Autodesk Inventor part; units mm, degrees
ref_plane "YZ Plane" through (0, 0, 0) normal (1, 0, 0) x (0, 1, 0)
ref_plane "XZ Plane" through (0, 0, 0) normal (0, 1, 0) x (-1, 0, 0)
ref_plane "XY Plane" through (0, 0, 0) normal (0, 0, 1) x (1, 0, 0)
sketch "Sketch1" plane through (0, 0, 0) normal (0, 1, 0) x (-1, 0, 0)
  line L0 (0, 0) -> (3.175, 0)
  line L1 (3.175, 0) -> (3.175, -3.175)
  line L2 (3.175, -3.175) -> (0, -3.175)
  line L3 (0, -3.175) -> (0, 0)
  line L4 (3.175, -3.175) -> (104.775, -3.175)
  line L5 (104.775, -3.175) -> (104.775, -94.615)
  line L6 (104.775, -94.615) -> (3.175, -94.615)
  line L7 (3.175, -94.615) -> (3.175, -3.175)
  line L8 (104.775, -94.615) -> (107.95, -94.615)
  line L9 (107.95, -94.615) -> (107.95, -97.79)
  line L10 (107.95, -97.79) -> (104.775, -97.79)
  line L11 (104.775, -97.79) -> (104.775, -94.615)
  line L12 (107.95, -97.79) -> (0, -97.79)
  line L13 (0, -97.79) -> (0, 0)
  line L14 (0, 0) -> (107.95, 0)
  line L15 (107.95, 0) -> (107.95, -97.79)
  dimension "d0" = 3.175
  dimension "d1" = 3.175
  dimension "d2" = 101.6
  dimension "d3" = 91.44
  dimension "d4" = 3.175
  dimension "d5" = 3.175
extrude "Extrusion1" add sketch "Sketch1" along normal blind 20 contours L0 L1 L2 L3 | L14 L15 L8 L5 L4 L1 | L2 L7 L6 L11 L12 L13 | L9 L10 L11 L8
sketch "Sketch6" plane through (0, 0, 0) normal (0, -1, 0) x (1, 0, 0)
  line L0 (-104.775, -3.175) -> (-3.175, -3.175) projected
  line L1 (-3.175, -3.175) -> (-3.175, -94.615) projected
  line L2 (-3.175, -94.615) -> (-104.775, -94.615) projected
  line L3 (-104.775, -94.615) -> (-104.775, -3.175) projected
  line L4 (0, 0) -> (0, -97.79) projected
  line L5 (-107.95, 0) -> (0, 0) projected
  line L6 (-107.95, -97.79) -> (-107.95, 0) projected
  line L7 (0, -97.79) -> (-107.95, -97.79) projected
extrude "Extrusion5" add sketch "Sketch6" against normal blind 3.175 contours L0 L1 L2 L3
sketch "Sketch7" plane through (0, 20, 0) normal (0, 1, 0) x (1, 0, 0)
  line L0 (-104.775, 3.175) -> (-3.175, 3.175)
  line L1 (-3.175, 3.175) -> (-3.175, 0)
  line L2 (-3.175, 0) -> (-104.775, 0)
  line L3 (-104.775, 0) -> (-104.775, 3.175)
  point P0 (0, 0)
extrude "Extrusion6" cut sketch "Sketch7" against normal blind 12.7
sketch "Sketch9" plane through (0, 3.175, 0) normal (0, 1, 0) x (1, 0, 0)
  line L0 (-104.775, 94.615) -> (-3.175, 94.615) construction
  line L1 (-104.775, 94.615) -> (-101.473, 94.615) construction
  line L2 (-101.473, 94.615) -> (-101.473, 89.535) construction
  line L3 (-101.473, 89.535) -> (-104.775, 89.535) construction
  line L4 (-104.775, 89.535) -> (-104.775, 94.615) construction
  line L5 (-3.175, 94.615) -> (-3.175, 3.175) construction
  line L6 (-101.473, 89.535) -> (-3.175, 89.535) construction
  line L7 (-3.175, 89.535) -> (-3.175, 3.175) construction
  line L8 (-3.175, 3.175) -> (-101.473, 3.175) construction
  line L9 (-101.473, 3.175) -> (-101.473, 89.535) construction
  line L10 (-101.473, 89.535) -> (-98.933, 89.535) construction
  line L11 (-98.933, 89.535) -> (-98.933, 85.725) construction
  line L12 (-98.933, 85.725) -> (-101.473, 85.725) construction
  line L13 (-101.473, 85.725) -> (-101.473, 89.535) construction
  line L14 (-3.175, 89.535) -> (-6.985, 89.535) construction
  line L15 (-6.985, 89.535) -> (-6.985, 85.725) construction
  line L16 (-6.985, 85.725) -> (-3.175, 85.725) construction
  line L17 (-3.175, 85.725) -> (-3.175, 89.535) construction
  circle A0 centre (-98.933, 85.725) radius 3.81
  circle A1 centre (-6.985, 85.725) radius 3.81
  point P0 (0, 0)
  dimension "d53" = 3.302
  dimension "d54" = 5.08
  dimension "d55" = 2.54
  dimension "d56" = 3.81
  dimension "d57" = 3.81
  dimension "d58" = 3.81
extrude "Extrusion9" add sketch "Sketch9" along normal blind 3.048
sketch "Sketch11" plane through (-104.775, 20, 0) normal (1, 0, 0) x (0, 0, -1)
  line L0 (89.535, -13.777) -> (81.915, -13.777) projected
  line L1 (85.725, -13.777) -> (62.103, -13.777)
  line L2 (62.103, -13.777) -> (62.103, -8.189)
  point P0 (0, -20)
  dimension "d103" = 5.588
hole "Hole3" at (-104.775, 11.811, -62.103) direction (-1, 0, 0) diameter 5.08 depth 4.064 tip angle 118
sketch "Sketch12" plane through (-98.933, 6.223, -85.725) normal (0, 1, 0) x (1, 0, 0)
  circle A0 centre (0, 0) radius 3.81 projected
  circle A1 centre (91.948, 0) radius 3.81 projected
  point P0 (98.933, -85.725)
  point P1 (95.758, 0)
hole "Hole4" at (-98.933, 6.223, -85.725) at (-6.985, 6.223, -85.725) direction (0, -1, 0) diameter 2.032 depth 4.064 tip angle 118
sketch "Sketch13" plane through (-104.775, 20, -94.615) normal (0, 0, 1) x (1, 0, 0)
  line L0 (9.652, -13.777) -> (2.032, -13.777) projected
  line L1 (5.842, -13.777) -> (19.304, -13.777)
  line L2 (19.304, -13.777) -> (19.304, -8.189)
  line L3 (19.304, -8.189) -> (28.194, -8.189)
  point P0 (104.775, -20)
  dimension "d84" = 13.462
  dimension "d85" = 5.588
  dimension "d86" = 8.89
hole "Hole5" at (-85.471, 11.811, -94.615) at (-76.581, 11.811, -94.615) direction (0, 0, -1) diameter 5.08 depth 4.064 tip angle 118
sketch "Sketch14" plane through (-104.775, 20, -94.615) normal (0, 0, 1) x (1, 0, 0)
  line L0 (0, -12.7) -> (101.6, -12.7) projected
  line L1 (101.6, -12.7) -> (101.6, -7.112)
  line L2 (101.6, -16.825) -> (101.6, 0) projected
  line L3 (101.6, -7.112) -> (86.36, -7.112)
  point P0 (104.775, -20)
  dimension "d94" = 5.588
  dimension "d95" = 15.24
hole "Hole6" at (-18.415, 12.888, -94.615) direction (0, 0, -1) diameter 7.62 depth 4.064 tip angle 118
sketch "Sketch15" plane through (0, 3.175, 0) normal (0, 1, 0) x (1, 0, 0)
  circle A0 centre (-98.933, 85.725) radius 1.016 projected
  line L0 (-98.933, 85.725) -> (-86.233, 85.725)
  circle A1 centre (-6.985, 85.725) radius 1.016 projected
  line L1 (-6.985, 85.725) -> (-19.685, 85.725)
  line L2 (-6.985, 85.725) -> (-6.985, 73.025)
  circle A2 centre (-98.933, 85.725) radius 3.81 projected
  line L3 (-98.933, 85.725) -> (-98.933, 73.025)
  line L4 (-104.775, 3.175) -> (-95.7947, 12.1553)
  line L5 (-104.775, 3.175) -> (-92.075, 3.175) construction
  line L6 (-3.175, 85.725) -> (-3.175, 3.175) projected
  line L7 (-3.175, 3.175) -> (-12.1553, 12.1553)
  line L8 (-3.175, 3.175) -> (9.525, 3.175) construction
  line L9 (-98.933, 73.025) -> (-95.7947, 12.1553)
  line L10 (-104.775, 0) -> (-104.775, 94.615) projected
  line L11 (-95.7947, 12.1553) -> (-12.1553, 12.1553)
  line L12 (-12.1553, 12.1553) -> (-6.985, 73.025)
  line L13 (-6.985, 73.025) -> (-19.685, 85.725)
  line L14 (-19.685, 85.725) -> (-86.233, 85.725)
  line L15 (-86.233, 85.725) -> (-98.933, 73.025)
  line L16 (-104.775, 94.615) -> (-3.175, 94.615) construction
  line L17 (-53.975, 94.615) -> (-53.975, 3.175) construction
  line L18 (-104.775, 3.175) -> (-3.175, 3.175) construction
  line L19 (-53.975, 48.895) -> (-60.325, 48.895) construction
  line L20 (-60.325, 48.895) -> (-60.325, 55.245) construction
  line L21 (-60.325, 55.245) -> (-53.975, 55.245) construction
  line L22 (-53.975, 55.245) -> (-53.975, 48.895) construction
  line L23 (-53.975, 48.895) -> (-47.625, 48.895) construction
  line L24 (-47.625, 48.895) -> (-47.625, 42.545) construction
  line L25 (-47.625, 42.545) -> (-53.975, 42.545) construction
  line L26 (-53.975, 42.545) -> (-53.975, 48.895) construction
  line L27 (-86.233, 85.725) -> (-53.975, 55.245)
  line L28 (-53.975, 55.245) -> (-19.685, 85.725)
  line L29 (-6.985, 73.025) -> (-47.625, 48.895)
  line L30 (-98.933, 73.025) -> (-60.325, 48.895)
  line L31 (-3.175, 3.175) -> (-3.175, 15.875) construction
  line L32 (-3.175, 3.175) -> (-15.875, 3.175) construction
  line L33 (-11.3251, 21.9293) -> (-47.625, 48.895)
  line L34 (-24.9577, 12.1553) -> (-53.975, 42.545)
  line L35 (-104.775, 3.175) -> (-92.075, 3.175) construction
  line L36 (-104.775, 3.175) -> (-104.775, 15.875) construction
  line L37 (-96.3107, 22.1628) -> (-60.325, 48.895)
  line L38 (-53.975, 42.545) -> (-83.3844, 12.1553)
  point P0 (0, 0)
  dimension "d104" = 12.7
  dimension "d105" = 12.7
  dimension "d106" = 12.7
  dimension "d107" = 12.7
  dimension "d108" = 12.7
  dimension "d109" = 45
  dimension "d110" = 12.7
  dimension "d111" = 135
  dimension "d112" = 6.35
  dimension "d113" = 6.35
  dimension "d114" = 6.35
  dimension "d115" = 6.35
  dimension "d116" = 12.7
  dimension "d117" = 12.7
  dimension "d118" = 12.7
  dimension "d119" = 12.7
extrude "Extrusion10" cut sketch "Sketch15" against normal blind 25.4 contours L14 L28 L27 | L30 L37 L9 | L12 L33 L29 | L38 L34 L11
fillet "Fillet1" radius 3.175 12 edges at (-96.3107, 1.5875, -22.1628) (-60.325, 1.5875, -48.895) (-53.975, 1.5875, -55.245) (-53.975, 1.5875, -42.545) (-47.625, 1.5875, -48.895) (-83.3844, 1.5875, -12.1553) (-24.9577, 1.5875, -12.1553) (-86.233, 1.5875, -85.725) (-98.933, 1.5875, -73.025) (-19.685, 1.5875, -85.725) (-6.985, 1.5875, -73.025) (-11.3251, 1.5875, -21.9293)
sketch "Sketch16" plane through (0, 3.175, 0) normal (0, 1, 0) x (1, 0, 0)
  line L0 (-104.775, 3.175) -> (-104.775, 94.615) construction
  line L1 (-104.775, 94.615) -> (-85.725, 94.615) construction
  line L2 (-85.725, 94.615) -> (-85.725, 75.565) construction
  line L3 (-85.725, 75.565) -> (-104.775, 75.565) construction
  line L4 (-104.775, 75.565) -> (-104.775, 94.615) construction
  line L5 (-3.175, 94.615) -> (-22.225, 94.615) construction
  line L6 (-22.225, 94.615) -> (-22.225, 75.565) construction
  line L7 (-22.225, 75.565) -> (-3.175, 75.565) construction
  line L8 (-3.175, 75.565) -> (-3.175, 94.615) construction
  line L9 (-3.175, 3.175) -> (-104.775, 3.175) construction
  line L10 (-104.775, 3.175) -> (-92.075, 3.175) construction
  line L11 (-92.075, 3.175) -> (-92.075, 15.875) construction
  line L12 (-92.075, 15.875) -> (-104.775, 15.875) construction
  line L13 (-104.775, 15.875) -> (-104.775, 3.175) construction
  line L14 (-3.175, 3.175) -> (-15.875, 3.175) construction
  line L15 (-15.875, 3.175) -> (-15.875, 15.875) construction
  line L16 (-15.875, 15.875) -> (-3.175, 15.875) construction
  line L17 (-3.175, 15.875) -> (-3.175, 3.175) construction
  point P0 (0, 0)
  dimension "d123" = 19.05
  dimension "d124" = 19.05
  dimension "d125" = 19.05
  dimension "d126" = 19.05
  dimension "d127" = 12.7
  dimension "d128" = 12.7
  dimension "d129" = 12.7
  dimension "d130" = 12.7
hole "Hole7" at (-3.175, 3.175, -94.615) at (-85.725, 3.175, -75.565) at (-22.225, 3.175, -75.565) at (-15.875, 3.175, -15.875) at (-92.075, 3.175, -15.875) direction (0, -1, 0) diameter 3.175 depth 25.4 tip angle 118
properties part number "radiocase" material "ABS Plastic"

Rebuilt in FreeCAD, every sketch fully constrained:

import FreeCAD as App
import Part
import Sketcher
from FreeCAD import Vector
Q = App.Units.Quantity


def edges_at(feature, points):
    """Names of the edges that pass closest to the given points."""
    edges = feature.Shape.Edges
    near = lambda p: min(range(len(edges)), key=lambda i: edges[i].distToShape(Part.Vertex(*p))[0])
    return sorted({f"Edge{near(p) + 1}" for p in points})

doc = App.newDocument("Part")
body = doc.addObject("PartDesign::Body", "Body")

sketch1 = body.newObject("Sketcher::SketchObject", "Sketch")
sketch1.AttachmentSupport = (doc.getObject("XZ_Plane"), [""])
sketch1.MapMode = "FlatFace"
sketch1.addGeometry(Part.LineSegment(Vector(0, 0, 0), Vector(0, -97.79, 0)), False)
sketch1.addGeometry(Part.LineSegment(Vector(0, -97.79, 0), Vector(-107.95, -97.79, 0)), False)
sketch1.addGeometry(Part.LineSegment(Vector(-107.95, -97.79, 0), Vector(-107.95, 0, 0)), False)
sketch1.addGeometry(Part.LineSegment(Vector(-107.95, 0, 0), Vector(0, 0, 0)), False)
sketch1.addGeometry(Part.LineSegment(Vector(-104.775, -3.175, 0), Vector(-104.775, -94.615, 0)), False)
sketch1.addGeometry(Part.LineSegment(Vector(-104.775, -94.615, 0), Vector(-3.175, -94.615, 0)), False)
sketch1.addGeometry(Part.LineSegment(Vector(-3.175, -94.615, 0), Vector(-3.175, -3.175, 0)), False)
sketch1.addGeometry(Part.LineSegment(Vector(-3.175, -3.175, 0), Vector(-104.775, -3.175, 0)), False)
sketch1.addConstraint(Sketcher.Constraint("Coincident", 0, 2, 1, 1))
sketch1.addConstraint(Sketcher.Constraint("Coincident", 1, 2, 2, 1))
sketch1.addConstraint(Sketcher.Constraint("Coincident", 2, 2, 3, 1))
sketch1.addConstraint(Sketcher.Constraint("Coincident", 3, 2, 0, 1))
sketch1.addConstraint(Sketcher.Constraint("Coincident", 4, 2, 5, 1))
sketch1.addConstraint(Sketcher.Constraint("Coincident", 5, 2, 6, 1))
sketch1.addConstraint(Sketcher.Constraint("Coincident", 6, 2, 7, 1))
sketch1.addConstraint(Sketcher.Constraint("Coincident", 7, 2, 4, 1))
sketch1.addConstraint(Sketcher.Constraint("Vertical", 0))
sketch1.addConstraint(Sketcher.Constraint("Horizontal", 1))
sketch1.addConstraint(Sketcher.Constraint("Vertical", 2))
sketch1.addConstraint(Sketcher.Constraint("Horizontal", 3))
sketch1.addConstraint(Sketcher.Constraint("Vertical", 4))
sketch1.addConstraint(Sketcher.Constraint("Horizontal", 5))
sketch1.addConstraint(Sketcher.Constraint("Vertical", 6))
sketch1.addConstraint(Sketcher.Constraint("Horizontal", 7))
sketch1.addConstraint(Sketcher.Constraint("Coincident", 3, 2, -1, 1))
sketch1.addConstraint(Sketcher.Constraint("DistanceX", 5, 1, 5, 2, Q("4 in")))
sketch1.addConstraint(Sketcher.Constraint("DistanceY", 4, 2, 4, 1, Q("3.6 in")))
sketch1.addConstraint(Sketcher.Constraint("DistanceX", 5, 2, -1, 1, Q("0.125 in")))
sketch1.addConstraint(Sketcher.Constraint("DistanceY", 6, 2, -1, 1, Q("0.125 in")))
sketch1.addConstraint(Sketcher.Constraint("DistanceX", 1, 2, 4, 2, Q("0.125 in")))
sketch1.addConstraint(Sketcher.Constraint("DistanceY", 1, 2, 4, 2, Q("0.125 in")))
pad1 = body.newObject("PartDesign::Pad", "Pad")
pad1.Profile = sketch1
pad1.Length = Q("0.7874016 in")
pad1.Reversed = True

sketch2 = body.newObject("Sketcher::SketchObject", "Sketch001")
sketch2.AttachmentSupport = (doc.getObject("XZ_Plane"), [""])
sketch2.MapMode = "FlatFace"
sketch2.addGeometry(Part.LineSegment(Vector(-3.175, -3.175, 0), Vector(-104.775, -3.175, 0)), False)
sketch2.addGeometry(Part.LineSegment(Vector(-104.775, -3.175, 0), Vector(-104.775, -94.615, 0)), False)
sketch2.addGeometry(Part.LineSegment(Vector(-104.775, -94.615, 0), Vector(-3.175, -94.615, 0)), False)
sketch2.addGeometry(Part.LineSegment(Vector(-3.175, -94.615, 0), Vector(-3.175, -3.175, 0)), False)
sketch2.addConstraint(Sketcher.Constraint("Coincident", 0, 2, 1, 1))
sketch2.addConstraint(Sketcher.Constraint("Coincident", 1, 2, 2, 1))
sketch2.addConstraint(Sketcher.Constraint("Coincident", 2, 2, 3, 1))
sketch2.addConstraint(Sketcher.Constraint("Coincident", 3, 2, 0, 1))
sketch2.addConstraint(Sketcher.Constraint("Horizontal", 0))
sketch2.addConstraint(Sketcher.Constraint("Vertical", 1))
sketch2.addConstraint(Sketcher.Constraint("Horizontal", 2))
sketch2.addConstraint(Sketcher.Constraint("Vertical", 3))
sketch2.addConstraint(Sketcher.Constraint("DistanceX", 0, 2, 0, 1, Q("4 in")))
sketch2.addConstraint(Sketcher.Constraint("DistanceY", 1, 2, 1, 1, Q("3.6 in")))
sketch2.addConstraint(Sketcher.Constraint("DistanceX", 0, 2, -1, 1, Q("4.125 in")))
sketch2.addConstraint(Sketcher.Constraint("DistanceY", 0, 2, -1, 1, Q("0.125 in")))
pad2 = body.newObject("PartDesign::Pad", "Pad001")
pad2.Profile = sketch2
pad2.Length = Q("0.125 in")
pad2.Reversed = True

sketch3 = body.newObject("Sketcher::SketchObject", "Sketch002")
sketch3.AttachmentSupport = (doc.getObject("XZ_Plane"), [""])
sketch3.MapMode = "FlatFace"
sketch3.AttachmentOffset = App.Placement(Vector(0, 0, -0.7874016 * 25.4), App.Rotation())
sketch3.addGeometry(Part.LineSegment(Vector(-3.175, -3.175, 0), Vector(-104.775, -3.175, 0)), False)
sketch3.addGeometry(Part.LineSegment(Vector(-104.775, -3.175, 0), Vector(-104.775, 0, 0)), False)
sketch3.addGeometry(Part.LineSegment(Vector(-104.775, 0, 0), Vector(-3.175, 0, 0)), False)
sketch3.addGeometry(Part.LineSegment(Vector(-3.175, 0, 0), Vector(-3.175, -3.175, 0)), False)
sketch3.addConstraint(Sketcher.Constraint("Coincident", 0, 2, 1, 1))
sketch3.addConstraint(Sketcher.Constraint("Coincident", 1, 2, 2, 1))
sketch3.addConstraint(Sketcher.Constraint("Coincident", 2, 2, 3, 1))
sketch3.addConstraint(Sketcher.Constraint("Coincident", 3, 2, 0, 1))
sketch3.addConstraint(Sketcher.Constraint("Horizontal", 0))
sketch3.addConstraint(Sketcher.Constraint("Vertical", 1))
sketch3.addConstraint(Sketcher.Constraint("Horizontal", 2))
sketch3.addConstraint(Sketcher.Constraint("Vertical", 3))
sketch3.addConstraint(Sketcher.Constraint("PointOnObject", 1, 2, -1))
sketch3.addConstraint(Sketcher.Constraint("DistanceX", 0, 2, 0, 1, Q("4 in")))
sketch3.addConstraint(Sketcher.Constraint("DistanceY", 1, 1, 1, 2, Q("0.125 in")))
sketch3.addConstraint(Sketcher.Constraint("DistanceX", 0, 2, -1, 1, Q("4.125 in")))
pocket1 = body.newObject("PartDesign::Pocket", "Pocket")
pocket1.Profile = sketch3
pocket1.Length = Q("0.5 in")
pocket1.Reversed = True

sketch4 = body.newObject("Sketcher::SketchObject", "Sketch003")
sketch4.AttachmentSupport = (doc.getObject("XZ_Plane"), [""])
sketch4.MapMode = "FlatFace"
sketch4.AttachmentOffset = App.Placement(Vector(0, 0, -0.125 * 25.4), App.Rotation())
sketch4.addGeometry(Part.Circle(Vector(-98.933, -85.725, 0), Vector(0, 0, 1), 3.81), False)
sketch4.addGeometry(Part.Circle(Vector(-6.985, -85.725, 0), Vector(0, 0, 1), 3.81), False)
sketch4.addConstraint(Sketcher.Constraint("Equal", 0, 1))
sketch4.addConstraint(Sketcher.Constraint("Horizontal", 0, 3, 1, 3))
sketch4.addConstraint(Sketcher.Constraint("Diameter", 0, Q("0.3 in")))
sketch4.addConstraint(Sketcher.Constraint("DistanceX", 0, 3, 1, 3, Q("3.62 in")))
sketch4.addConstraint(Sketcher.Constraint("DistanceX", 0, 3, -1, 1, Q("3.895 in")))
sketch4.addConstraint(Sketcher.Constraint("DistanceY", 0, 3, -1, 1, Q("3.375 in")))
pad3 = body.newObject("PartDesign::Pad", "Pad002")
pad3.Profile = sketch4
pad3.Length = Q("0.12 in")
pad3.Reversed = True

sketch5 = body.newObject("Sketcher::SketchObject", "Sketch004")
sketch5.AttachmentSupport = (doc.getObject("YZ_Plane"), [""])
sketch5.MapMode = "FlatFace"
sketch5.AttachmentOffset = App.Placement(Vector(0, 0, -4.125 * 25.4), App.Rotation())
sketch5.addGeometry(Part.Circle(Vector(11.811, -62.103, 0), Vector(0, 0, 1), 2.54), False)
sketch5.addConstraint(Sketcher.Constraint("Diameter", 0, Q("0.2 in")))
sketch5.addConstraint(Sketcher.Constraint("DistanceX", -1, 1, 0, 3, Q("0.465 in")))
sketch5.addConstraint(Sketcher.Constraint("DistanceY", 0, 3, -1, 1, Q("2.445 in")))
doc.recompute()
hole = body.newObject("PartDesign::Hole", "Hole")
hole.Profile = sketch5
hole.ThreadType = "None"
hole.Diameter = Q("0.2 in")
hole.DepthType = "Dimension"
hole.Depth = Q("0.16 in")
hole.DrillPoint = "Angled"
hole.DrillPointAngle = 118

sketch6 = body.newObject("Sketcher::SketchObject", "Sketch005")
sketch6.AttachmentSupport = (doc.getObject("XZ_Plane"), [""])
sketch6.MapMode = "FlatFace"
sketch6.AttachmentOffset = App.Placement(Vector(0, 0, -0.245 * 25.4), App.Rotation())
sketch6.addGeometry(Part.Circle(Vector(-98.933, -85.725, 0), Vector(0, 0, 1), 1.016), False)
sketch6.addGeometry(Part.Circle(Vector(-6.985, -85.725, 0), Vector(0, 0, 1), 1.016), False)
sketch6.addConstraint(Sketcher.Constraint("Equal", 0, 1))
sketch6.addConstraint(Sketcher.Constraint("Horizontal", 0, 3, 1, 3))
sketch6.addConstraint(Sketcher.Constraint("Diameter", 0, Q("0.08 in")))
sketch6.addConstraint(Sketcher.Constraint("DistanceX", 0, 3, 1, 3, Q("3.62 in")))
sketch6.addConstraint(Sketcher.Constraint("DistanceX", 0, 3, -1, 1, Q("3.895 in")))
sketch6.addConstraint(Sketcher.Constraint("DistanceY", 0, 3, -1, 1, Q("3.375 in")))
doc.recompute()
hole2 = body.newObject("PartDesign::Hole", "Hole001")
hole2.Profile = sketch6
hole2.ThreadType = "None"
hole2.Diameter = Q("0.08 in")
hole2.DepthType = "Dimension"
hole2.Depth = Q("0.16 in")
hole2.DrillPoint = "Angled"
hole2.DrillPointAngle = 118
hole2.Reversed = True

sketch7 = body.newObject("Sketcher::SketchObject", "Sketch006")
sketch7.AttachmentSupport = (doc.getObject("XY_Plane"), [""])
sketch7.MapMode = "FlatFace"
sketch7.AttachmentOffset = App.Placement(Vector(0, 0, -3.725 * 25.4), App.Rotation())
sketch7.addGeometry(Part.Circle(Vector(-85.471, 11.811, 0), Vector(0, 0, 1), 2.54), False)
sketch7.addGeometry(Part.Circle(Vector(-76.581, 11.811, 0), Vector(0, 0, 1), 2.54), False)
sketch7.addConstraint(Sketcher.Constraint("Equal", 0, 1))
sketch7.addConstraint(Sketcher.Constraint("Horizontal", 0, 3, 1, 3))
sketch7.addConstraint(Sketcher.Constraint("Diameter", 0, Q("0.2 in")))
sketch7.addConstraint(Sketcher.Constraint("DistanceX", 0, 3, 1, 3, Q("0.35 in")))
sketch7.addConstraint(Sketcher.Constraint("DistanceX", 0, 3, -1, 1, Q("3.365 in")))
sketch7.addConstraint(Sketcher.Constraint("DistanceY", -1, 1, 0, 3, Q("0.465 in")))
doc.recompute()
hole3 = body.newObject("PartDesign::Hole", "Hole002")
hole3.Profile = sketch7
hole3.ThreadType = "None"
hole3.Diameter = Q("0.2 in")
hole3.DepthType = "Dimension"
hole3.Depth = Q("0.16 in")
hole3.DrillPoint = "Angled"
hole3.DrillPointAngle = 118

sketch8 = body.newObject("Sketcher::SketchObject", "Sketch007")
sketch8.AttachmentSupport = (doc.getObject("XY_Plane"), [""])
sketch8.MapMode = "FlatFace"
sketch8.AttachmentOffset = App.Placement(Vector(0, 0, -3.725 * 25.4), App.Rotation())
sketch8.addGeometry(Part.Circle(Vector(-18.415, 12.888, 0), Vector(0, 0, 1), 3.81), False)
sketch8.addConstraint(Sketcher.Constraint("Diameter", 0, Q("0.3 in")))
sketch8.addConstraint(Sketcher.Constraint("DistanceX", 0, 3, -1, 1, Q("0.725 in")))
sketch8.addConstraint(Sketcher.Constraint("DistanceY", -1, 1, 0, 3, Q("0.5074 in")))
doc.recompute()
hole4 = body.newObject("PartDesign::Hole", "Hole003")
hole4.Profile = sketch8
hole4.ThreadType = "None"
hole4.Diameter = Q("0.3 in")
hole4.DepthType = "Dimension"
hole4.Depth = Q("0.16 in")
hole4.DrillPoint = "Angled"
hole4.DrillPointAngle = 118

sketch9 = body.newObject("Sketcher::SketchObject", "Sketch008")
sketch9.AttachmentSupport = (doc.getObject("XZ_Plane"), [""])
sketch9.MapMode = "FlatFace"
sketch9.AttachmentOffset = App.Placement(Vector(0, 0, -0.125 * 25.4), App.Rotation())
sketch9.addGeometry(Part.LineSegment(Vector(-19.685, -85.725, 0), Vector(-86.233, -85.725, 0)), False)
sketch9.addGeometry(Part.LineSegment(Vector(-86.233, -85.725, 0), Vector(-53.975, -55.245, 0)), False)
sketch9.addGeometry(Part.LineSegment(Vector(-53.975, -55.245, 0), Vector(-19.685, -85.725, 0)), False)
sketch9.addGeometry(Part.LineSegment(Vector(-60.325, -48.895, 0), Vector(-98.933, -73.025, 0)), False)
sketch9.addGeometry(Part.LineSegment(Vector(-98.933, -73.025, 0), Vector(-96.310663, -22.162802, 0)), False)
sketch9.addGeometry(Part.LineSegment(Vector(-96.3107, -22.1628, 0), Vector(-60.325, -48.895, 0)), False)
sketch9.addGeometry(Part.LineSegment(Vector(-11.325092, -21.929299, 0), Vector(-6.985, -73.025, 0)), False)
sketch9.addGeometry(Part.LineSegment(Vector(-6.985, -73.025, 0), Vector(-47.625, -48.895, 0)), False)
sketch9.addGeometry(Part.LineSegment(Vector(-47.625, -48.895, 0), Vector(-11.3251, -21.9293, 0)), False)
sketch9.addGeometry(Part.LineSegment(Vector(-53.975, -42.545, 0), Vector(-83.3844, -12.1553, 0)), False)
sketch9.addGeometry(Part.LineSegment(Vector(-83.3844, -12.1553, 0), Vector(-24.9577, -12.1553, 0)), False)
sketch9.addGeometry(Part.LineSegment(Vector(-24.9577, -12.1553, 0), Vector(-53.975, -42.545, 0)), False)
sketch9.addConstraint(Sketcher.Constraint("Coincident", 0, 2, 1, 1))
sketch9.addConstraint(Sketcher.Constraint("Coincident", 1, 2, 2, 1))
sketch9.addConstraint(Sketcher.Constraint("Coincident", 2, 2, 0, 1))
sketch9.addConstraint(Sketcher.Constraint("Coincident", 3, 2, 4, 1))
sketch9.addConstraint(Sketcher.Constraint("Coincident", 4, 2, 5, 1))
sketch9.addConstraint(Sketcher.Constraint("Coincident", 5, 2, 3, 1))
sketch9.addConstraint(Sketcher.Constraint("Coincident", 6, 2, 7, 1))
sketch9.addConstraint(Sketcher.Constraint("Coincident", 7, 2, 8, 1))
sketch9.addConstraint(Sketcher.Constraint("Coincident", 8, 2, 6, 1))
sketch9.addConstraint(Sketcher.Constraint("Coincident", 9, 2, 10, 1))
sketch9.addConstraint(Sketcher.Constraint("Coincident", 10, 2, 11, 1))
sketch9.addConstraint(Sketcher.Constraint("Coincident", 11, 2, 9, 1))
sketch9.addConstraint(Sketcher.Constraint("Horizontal", 0))
sketch9.addConstraint(Sketcher.Constraint("Horizontal", 10))
sketch9.addConstraint(Sketcher.Constraint("Horizontal", 3, 2, 6, 2))
sketch9.addConstraint(Sketcher.Constraint("Horizontal", 5, 2, 7, 2))
sketch9.addConstraint(Sketcher.Constraint("Vertical", 1, 2, 11, 2))
sketch9.addConstraint(Sketcher.Constraint("DistanceX", 3, 2, 0, 2, Q("0.5 in")))
sketch9.addConstraint(Sketcher.Constraint("DistanceY", 0, 2, 3, 2, Q("0.5 in")))
sketch9.addConstraint(Sketcher.Constraint("DistanceX", 2, 2, 6, 2, Q("0.5 in")))
sketch9.addConstraint(Sketcher.Constraint("DistanceX", 5, 2, 7, 2, Q("0.5 in")))
sketch9.addConstraint(Sketcher.Constraint("DistanceY", 1, 2, 11, 2, Q("0.5 in")))
sketch9.addConstraint(Sketcher.Constraint("DistanceX", 5, 2, 1, 2, Q("0.25 in")))
sketch9.addConstraint(Sketcher.Constraint("DistanceY", 1, 2, 5, 2, Q("0.25 in")))
sketch9.addConstraint(Sketcher.Constraint("DistanceX", 0, 2, 0, 1, Q("2.62 in")))
sketch9.addConstraint(Sketcher.Constraint("Angle", 7, Q("149.3003 deg")))
sketch9.addConstraint(Sketcher.Constraint("DistanceY", 0, 2, 1, 2, Q("1.2 in")))
sketch9.addConstraint(Sketcher.Constraint("Angle", 9, Q("134.0608 deg")))
sketch9.addConstraint(Sketcher.Constraint("DistanceX", 0, 2, -1, 1, Q("3.395 in")))
sketch9.addConstraint(Sketcher.Constraint("DistanceY", 0, 2, -1, 1, Q("3.375 in")))
sketch9.addConstraint(Sketcher.Constraint("DistanceY", 4, 2, 9, 2, Q("0.394 in")))
sketch9.addConstraint(Sketcher.Constraint("Distance", 4, Q("2.0051 in")))
sketch9.addConstraint(Sketcher.Constraint("Distance", 5, Q("1.7649 in")))
sketch9.addConstraint(Sketcher.Constraint("Distance", 8, Q("1.7803 in")))
sketch9.addConstraint(Sketcher.Constraint("DistanceX", 10, 1, 10, 2, Q("58.4267 mm")))
sketch9.addConstraint(Sketcher.Constraint("DistanceY", 8, 2, 10, 2, Q("0.3848 in")))
pocket2 = body.newObject("PartDesign::Pocket", "Pocket001")
pocket2.Profile = sketch9
pocket2.Length = Q("1 in")
pocket2.Reversed = True
doc.recompute()

fillet = body.newObject("PartDesign::Fillet", "Fillet")
fillet.Base = (pocket2, edges_at(pocket2, [
    (-96.311, 1.587, -22.163),
    (-60.325, 1.587, -48.895),
    (-53.975, 1.587, -55.245),
    (-53.975, 1.587, -42.545),
    (-47.625, 1.587, -48.895),
    (-83.384, 1.587, -12.155),
    (-24.958, 1.587, -12.155),
    (-86.233, 1.587, -85.725),
    (-98.933, 1.587, -73.025),
    (-19.685, 1.587, -85.725),
    (-6.985, 1.587, -73.025),
    (-11.325, 1.587, -21.929),
]))
fillet.Radius = Q("0.125 in")

sketch10 = body.newObject("Sketcher::SketchObject", "Sketch009")
sketch10.AttachmentSupport = (doc.getObject("XZ_Plane"), [""])
sketch10.MapMode = "FlatFace"
sketch10.AttachmentOffset = App.Placement(Vector(0, 0, -0.125 * 25.4), App.Rotation())
sketch10.addGeometry(Part.Circle(Vector(-3.175, -94.615, 0), Vector(0, 0, 1), 1.5875), False)
sketch10.addGeometry(Part.Circle(Vector(-85.725, -75.565, 0), Vector(0, 0, 1), 1.5875), False)
sketch10.addGeometry(Part.Circle(Vector(-22.225, -75.565, 0), Vector(0, 0, 1), 1.5875), False)
sketch10.addGeometry(Part.Circle(Vector(-15.875, -15.875, 0), Vector(0, 0, 1), 1.5875), False)
sketch10.addGeometry(Part.Circle(Vector(-92.075, -15.875, 0), Vector(0, 0, 1), 1.5875), False)
sketch10.addConstraint(Sketcher.Constraint("Equal", 0, 1))
sketch10.addConstraint(Sketcher.Constraint("Equal", 1, 2))
sketch10.addConstraint(Sketcher.Constraint("Equal", 2, 3))
sketch10.addConstraint(Sketcher.Constraint("Equal", 3, 4))
sketch10.addConstraint(Sketcher.Constraint("Horizontal", 1, 3, 2, 3))
sketch10.addConstraint(Sketcher.Constraint("Horizontal", 3, 3, 4, 3))
sketch10.addConstraint(Sketcher.Constraint("Diameter", 0, Q("0.125 in")))
sketch10.addConstraint(Sketcher.Constraint("DistanceX", 4, 3, 3, 3, Q("3 in")))
sketch10.addConstraint(Sketcher.Constraint("DistanceX", 1, 3, 2, 3, Q("2.5 in")))
sketch10.addConstraint(Sketcher.Constraint("DistanceX", 3, 3, 0, 3, Q("0.5 in")))
sketch10.addConstraint(Sketcher.Constraint("DistanceY", 0, 3, 3, 3, Q("3.1 in")))
sketch10.addConstraint(Sketcher.Constraint("DistanceX", 1, 3, 0, 3, Q("3.25 in")))
sketch10.addConstraint(Sketcher.Constraint("DistanceY", 0, 3, 1, 3, Q("0.75 in")))
sketch10.addConstraint(Sketcher.Constraint("DistanceX", 0, 3, -1, 1, Q("0.125 in")))
sketch10.addConstraint(Sketcher.Constraint("DistanceY", 0, 3, -1, 1, Q("3.725 in")))
doc.recompute()
hole5 = body.newObject("PartDesign::Hole", "Hole004")
hole5.Profile = sketch10
hole5.ThreadType = "None"
hole5.Diameter = Q("0.125 in")
hole5.DepthType = "Dimension"
hole5.Depth = Q("1 in")
hole5.DrillPoint = "Angled"
hole5.DrillPointAngle = 118
hole5.Reversed = True

doc.recompute()
